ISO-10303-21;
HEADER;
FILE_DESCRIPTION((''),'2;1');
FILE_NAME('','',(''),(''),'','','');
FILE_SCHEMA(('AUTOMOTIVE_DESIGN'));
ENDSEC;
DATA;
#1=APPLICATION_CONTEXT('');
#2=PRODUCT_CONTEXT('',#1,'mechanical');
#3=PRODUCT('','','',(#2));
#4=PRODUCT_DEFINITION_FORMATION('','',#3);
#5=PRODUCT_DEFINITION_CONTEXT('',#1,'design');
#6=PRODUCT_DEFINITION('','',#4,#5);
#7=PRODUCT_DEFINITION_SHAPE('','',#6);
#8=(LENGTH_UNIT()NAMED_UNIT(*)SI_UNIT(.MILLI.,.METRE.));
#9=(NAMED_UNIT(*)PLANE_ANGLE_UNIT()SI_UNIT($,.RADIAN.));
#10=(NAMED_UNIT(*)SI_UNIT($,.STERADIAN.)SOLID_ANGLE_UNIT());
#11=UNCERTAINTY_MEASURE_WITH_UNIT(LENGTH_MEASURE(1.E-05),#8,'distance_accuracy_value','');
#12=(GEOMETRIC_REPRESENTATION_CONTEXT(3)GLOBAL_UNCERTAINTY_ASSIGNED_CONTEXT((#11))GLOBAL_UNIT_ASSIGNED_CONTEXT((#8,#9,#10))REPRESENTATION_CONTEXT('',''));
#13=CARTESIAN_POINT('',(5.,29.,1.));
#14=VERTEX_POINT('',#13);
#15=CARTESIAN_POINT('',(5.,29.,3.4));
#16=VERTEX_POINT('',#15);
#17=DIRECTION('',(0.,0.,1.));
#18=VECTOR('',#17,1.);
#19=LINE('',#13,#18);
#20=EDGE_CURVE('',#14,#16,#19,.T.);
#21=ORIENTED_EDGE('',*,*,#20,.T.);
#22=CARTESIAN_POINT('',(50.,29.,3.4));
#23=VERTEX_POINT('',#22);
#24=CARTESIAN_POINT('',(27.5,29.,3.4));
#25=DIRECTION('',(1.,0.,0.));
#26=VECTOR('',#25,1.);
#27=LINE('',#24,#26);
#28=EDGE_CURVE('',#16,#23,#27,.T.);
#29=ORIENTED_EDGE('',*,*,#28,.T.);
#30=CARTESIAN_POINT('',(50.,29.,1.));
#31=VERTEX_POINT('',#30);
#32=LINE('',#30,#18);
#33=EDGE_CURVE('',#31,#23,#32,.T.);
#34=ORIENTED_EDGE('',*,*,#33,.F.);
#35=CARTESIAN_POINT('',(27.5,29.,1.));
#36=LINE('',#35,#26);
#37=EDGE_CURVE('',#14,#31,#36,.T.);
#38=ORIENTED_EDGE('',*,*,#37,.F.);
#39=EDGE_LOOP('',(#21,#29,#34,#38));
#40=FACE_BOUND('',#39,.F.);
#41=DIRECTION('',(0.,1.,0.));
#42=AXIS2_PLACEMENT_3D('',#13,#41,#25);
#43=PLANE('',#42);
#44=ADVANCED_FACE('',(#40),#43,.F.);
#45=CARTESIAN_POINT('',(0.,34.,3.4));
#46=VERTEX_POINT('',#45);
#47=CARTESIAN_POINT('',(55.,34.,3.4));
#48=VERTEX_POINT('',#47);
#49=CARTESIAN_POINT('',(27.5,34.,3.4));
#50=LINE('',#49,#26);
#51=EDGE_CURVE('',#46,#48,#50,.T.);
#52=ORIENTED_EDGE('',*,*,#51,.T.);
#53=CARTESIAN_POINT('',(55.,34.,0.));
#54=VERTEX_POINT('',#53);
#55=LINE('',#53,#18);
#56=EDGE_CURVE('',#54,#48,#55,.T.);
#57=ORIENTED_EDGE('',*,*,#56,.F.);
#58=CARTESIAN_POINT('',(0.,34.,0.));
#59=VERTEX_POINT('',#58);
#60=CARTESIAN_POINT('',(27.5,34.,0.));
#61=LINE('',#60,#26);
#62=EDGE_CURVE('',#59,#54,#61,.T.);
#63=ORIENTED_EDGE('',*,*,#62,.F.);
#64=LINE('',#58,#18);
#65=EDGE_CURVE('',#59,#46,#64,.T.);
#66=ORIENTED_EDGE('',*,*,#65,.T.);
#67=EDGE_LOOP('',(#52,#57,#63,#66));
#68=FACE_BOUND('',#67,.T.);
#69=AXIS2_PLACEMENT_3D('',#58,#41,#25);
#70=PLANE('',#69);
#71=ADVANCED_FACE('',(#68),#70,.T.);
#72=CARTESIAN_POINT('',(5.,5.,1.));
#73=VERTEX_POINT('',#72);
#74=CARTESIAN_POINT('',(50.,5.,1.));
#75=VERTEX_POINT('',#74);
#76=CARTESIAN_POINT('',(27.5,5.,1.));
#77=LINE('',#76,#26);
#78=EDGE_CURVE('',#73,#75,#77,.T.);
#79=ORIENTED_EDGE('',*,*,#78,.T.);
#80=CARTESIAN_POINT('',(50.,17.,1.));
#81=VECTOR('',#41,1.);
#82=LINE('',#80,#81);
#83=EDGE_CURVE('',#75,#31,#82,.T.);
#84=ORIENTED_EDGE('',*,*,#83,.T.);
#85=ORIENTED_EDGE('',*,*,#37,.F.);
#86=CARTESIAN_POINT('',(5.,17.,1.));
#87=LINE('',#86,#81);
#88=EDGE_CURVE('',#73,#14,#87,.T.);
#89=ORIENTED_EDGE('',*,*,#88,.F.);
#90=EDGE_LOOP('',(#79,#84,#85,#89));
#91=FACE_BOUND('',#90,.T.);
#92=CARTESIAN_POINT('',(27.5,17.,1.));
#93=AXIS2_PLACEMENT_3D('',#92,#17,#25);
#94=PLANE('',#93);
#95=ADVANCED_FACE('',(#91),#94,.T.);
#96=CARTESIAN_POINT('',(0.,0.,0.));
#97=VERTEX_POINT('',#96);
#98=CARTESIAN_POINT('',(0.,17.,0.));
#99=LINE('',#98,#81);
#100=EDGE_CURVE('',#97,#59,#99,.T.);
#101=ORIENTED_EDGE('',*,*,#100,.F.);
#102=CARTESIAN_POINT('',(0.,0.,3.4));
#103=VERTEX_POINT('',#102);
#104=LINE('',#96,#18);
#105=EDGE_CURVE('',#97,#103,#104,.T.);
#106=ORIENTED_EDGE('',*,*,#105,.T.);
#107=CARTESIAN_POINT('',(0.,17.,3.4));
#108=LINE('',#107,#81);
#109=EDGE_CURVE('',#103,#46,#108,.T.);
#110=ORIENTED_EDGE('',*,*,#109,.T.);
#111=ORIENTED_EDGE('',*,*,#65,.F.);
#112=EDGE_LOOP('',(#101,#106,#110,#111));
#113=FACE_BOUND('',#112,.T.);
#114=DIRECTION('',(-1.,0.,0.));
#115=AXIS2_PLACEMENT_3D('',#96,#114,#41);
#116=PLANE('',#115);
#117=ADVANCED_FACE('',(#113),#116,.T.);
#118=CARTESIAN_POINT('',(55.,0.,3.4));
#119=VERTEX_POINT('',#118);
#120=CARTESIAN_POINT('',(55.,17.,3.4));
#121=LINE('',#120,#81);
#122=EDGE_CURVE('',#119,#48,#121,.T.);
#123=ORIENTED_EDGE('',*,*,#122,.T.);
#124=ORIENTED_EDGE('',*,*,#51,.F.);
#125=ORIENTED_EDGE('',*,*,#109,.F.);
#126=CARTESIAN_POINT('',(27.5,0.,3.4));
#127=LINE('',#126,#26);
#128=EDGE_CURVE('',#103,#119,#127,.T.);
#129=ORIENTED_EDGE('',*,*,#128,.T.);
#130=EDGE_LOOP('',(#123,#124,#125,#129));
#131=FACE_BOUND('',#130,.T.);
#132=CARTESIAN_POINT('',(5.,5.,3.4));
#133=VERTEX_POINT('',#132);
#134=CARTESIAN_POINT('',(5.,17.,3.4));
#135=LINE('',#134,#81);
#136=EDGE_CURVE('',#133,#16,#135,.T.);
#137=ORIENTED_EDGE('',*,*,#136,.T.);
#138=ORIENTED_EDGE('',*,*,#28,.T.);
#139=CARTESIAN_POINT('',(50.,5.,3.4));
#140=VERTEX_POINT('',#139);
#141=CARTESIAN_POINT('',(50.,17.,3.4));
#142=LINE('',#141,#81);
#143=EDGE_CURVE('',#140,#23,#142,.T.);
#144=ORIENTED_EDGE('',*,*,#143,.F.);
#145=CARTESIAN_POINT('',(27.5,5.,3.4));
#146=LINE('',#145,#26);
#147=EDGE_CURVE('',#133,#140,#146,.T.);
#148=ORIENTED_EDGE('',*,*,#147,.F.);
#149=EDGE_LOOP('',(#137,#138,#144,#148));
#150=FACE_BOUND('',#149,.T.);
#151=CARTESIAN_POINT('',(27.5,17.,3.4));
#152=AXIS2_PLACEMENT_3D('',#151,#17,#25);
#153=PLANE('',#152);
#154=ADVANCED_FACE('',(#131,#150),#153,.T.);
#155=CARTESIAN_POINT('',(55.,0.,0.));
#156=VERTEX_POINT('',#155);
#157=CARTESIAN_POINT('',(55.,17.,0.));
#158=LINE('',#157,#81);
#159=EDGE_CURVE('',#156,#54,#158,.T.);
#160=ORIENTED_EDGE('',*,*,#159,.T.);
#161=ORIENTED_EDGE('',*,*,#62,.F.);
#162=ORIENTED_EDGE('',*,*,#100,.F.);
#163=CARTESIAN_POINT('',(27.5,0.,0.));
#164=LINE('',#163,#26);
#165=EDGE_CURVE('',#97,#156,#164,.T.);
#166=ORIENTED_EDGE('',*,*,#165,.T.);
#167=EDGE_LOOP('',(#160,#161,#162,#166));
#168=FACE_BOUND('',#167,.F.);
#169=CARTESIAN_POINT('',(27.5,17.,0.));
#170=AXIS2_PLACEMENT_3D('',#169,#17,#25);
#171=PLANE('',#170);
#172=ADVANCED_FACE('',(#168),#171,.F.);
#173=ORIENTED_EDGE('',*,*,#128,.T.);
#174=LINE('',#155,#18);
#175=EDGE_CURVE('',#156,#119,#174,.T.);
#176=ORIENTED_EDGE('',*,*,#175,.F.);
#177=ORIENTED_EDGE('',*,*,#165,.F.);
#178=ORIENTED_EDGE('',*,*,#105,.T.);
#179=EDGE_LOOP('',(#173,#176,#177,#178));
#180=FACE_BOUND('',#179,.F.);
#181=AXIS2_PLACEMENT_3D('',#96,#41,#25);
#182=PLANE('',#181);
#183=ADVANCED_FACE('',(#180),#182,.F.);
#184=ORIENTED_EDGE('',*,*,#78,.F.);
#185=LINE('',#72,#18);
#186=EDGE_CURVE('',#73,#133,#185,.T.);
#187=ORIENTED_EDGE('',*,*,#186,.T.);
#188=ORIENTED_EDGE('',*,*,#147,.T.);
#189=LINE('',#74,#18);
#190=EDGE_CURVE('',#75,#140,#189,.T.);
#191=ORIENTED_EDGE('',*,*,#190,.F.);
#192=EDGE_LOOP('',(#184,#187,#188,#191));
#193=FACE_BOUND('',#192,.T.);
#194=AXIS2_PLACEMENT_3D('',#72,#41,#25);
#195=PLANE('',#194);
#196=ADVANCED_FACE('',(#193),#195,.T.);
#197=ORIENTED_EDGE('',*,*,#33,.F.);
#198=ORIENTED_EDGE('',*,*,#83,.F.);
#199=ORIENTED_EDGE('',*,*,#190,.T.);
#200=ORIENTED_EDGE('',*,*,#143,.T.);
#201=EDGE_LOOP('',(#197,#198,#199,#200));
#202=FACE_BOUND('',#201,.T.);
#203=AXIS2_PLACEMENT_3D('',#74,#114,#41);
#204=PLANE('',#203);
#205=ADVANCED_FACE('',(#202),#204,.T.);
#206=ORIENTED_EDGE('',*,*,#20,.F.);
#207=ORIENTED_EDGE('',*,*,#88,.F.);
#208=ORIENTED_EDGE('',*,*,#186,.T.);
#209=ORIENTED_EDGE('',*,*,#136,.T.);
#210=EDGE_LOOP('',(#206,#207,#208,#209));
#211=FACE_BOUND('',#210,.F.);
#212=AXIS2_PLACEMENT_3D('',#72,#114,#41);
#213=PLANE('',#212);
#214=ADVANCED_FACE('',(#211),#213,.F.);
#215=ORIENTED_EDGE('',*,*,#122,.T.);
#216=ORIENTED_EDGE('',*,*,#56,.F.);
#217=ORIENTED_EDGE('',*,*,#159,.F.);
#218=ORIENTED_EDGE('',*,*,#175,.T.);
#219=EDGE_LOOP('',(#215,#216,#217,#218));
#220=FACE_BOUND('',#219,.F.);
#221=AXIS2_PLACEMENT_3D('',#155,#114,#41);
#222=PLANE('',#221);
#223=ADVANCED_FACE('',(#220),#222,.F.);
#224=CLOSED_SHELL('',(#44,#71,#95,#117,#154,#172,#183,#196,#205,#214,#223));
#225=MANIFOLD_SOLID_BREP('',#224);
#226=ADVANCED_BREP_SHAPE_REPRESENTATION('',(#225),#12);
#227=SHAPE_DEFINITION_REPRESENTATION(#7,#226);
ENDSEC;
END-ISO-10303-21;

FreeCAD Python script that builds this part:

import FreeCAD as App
import Part
import Sketcher
from FreeCAD import Vector

doc = App.newDocument("Part")
body = doc.addObject("PartDesign::Body", "Body")

sketch1 = body.newObject("Sketcher::SketchObject", "Sketch")
sketch1.AttachmentSupport = (doc.getObject("XY_Plane"), [""])
sketch1.MapMode = "FlatFace"
sketch1.AttachmentOffset = App.Placement(Vector(0, 0, 1), App.Rotation())
sketch1.addGeometry([
    Part.LineSegment(Vector(5, 29, 0), Vector(5, 5, 0)),
    Part.LineSegment(Vector(5, 5, 0), Vector(50, 5, 0)),
    Part.LineSegment(Vector(50, 5, 0), Vector(50, 29, 0)),
    Part.LineSegment(Vector(50, 29, 0), Vector(5, 29, 0)),
], False)
sketch1.addConstraint([
    Sketcher.Constraint("Coincident", 0, 2, 1, 1),
    Sketcher.Constraint("Coincident", 1, 2, 2, 1),
    Sketcher.Constraint("Coincident", 2, 2, 3, 1),
    Sketcher.Constraint("Coincident", 3, 2, 0, 1),
    Sketcher.Constraint("Vertical", 0),
    Sketcher.Constraint("Horizontal", 1),
    Sketcher.Constraint("Vertical", 2),
    Sketcher.Constraint("Horizontal", 3),
    Sketcher.Constraint("DistanceX", 1, 1, 1, 2, 45.0),
    Sketcher.Constraint("DistanceY", 0, 2, 0, 1, 24.0),
    Sketcher.Constraint("DistanceX", -1, 1, 0, 2, 5.0),
    Sketcher.Constraint("DistanceY", -1, 1, 0, 2, 5.0),
])
pad1 = body.newObject("PartDesign::Pad", "Pad")
pad1.Profile = sketch1
pad1.Length = 2.4
body2 = doc.addObject("PartDesign::Body", "Body001")

sketch2 = body2.newObject("Sketcher::SketchObject", "Sketch001")
sketch2.AttachmentSupport = (doc.getObject("XY_Plane001"), [""])
sketch2.MapMode = "FlatFace"
sketch2.addGeometry([
    Part.LineSegment(Vector(0, 34, 0), Vector(0, 0, 0)),
    Part.LineSegment(Vector(0, 0, 0), Vector(55, 0, 0)),
    Part.LineSegment(Vector(55, 0, 0), Vector(55, 34, 0)),
    Part.LineSegment(Vector(55, 34, 0), Vector(0, 34, 0)),
], False)
sketch2.addConstraint([
    Sketcher.Constraint("Coincident", 0, 2, 1, 1),
    Sketcher.Constraint("Coincident", 1, 2, 2, 1),
    Sketcher.Constraint("Coincident", 2, 2, 3, 1),
    Sketcher.Constraint("Coincident", 3, 2, 0, 1),
    Sketcher.Constraint("Vertical", 0),
    Sketcher.Constraint("Horizontal", 1),
    Sketcher.Constraint("Vertical", 2),
    Sketcher.Constraint("Horizontal", 3),
    Sketcher.Constraint("Coincident", 0, 2, -1, 1),
    Sketcher.Constraint("DistanceX", 1, 1, 1, 2, 55.0),
    Sketcher.Constraint("DistanceY", 0, 2, 0, 1, 34.0),
])
pad2 = body2.newObject("PartDesign::Pad", "Pad001")
pad2.Profile = sketch2
pad2.Length = 3.4
doc.recompute()

boolean = body2.newObject("PartDesign::Boolean", "Boolean")
boolean.Type = "Cut"
boolean.addObjects([body])

doc.recompute()
